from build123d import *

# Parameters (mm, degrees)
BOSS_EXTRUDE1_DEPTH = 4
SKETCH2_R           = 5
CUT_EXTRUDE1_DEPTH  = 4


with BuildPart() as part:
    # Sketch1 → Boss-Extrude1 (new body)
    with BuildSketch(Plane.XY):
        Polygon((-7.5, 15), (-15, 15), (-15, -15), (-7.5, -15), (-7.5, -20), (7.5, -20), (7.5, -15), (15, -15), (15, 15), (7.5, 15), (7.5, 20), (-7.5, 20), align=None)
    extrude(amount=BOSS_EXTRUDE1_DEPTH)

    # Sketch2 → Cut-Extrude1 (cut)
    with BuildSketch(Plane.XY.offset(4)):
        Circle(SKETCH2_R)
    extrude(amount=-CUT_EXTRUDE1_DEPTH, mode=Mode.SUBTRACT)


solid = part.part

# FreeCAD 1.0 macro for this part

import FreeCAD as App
import Part
import Sketcher


def add_polygon(sketch, points):
    """Adds a closed chain of lines whose ends are joined by coincident constraints."""
    first, n = sketch.GeometryCount, len(points)
    for a, b in zip(points, points[1:] + points[:1]):
        sketch.addGeometry(Part.LineSegment(App.Vector(*a, 0), App.Vector(*b, 0)), False)
    for i in range(n):
        sketch.addConstraint(Sketcher.Constraint("Coincident", first + i, 2, first + (i + 1) % n, 1))

doc = App.newDocument("Part")
body = doc.addObject("PartDesign::Body", "Body")

# Sketch on XY plane
sketch1 = body.newObject("Sketcher::SketchObject", "Sketch")
sketch1.AttachmentSupport = (doc.getObject("XY_Plane"), [""])
sketch1.MapMode = "FlatFace"
add_polygon(sketch1, [(-8, 15), (-15, 15), (-15, -15), (-8, -15), (-8, -20), (8, -20), (8, -15), (15, -15), (15, 15), (8, 15), (8, 20), (-8, 20)])  # lines 0-11
sketch1.addConstraint(Sketcher.Constraint("Horizontal", 0))
sketch1.addConstraint(Sketcher.Constraint("Vertical", 1))
sketch1.addConstraint(Sketcher.Constraint("Horizontal", 2))
sketch1.addConstraint(Sketcher.Constraint("Vertical", 3))
sketch1.addConstraint(Sketcher.Constraint("Horizontal", 4))
sketch1.addConstraint(Sketcher.Constraint("Vertical", 5))
sketch1.addConstraint(Sketcher.Constraint("Horizontal", 6))
sketch1.addConstraint(Sketcher.Constraint("Vertical", 7))
sketch1.addConstraint(Sketcher.Constraint("Horizontal", 8))
sketch1.addConstraint(Sketcher.Constraint("Vertical", 9))
sketch1.addConstraint(Sketcher.Constraint("Horizontal", 10))
sketch1.addConstraint(Sketcher.Constraint("Vertical", 11))
sketch1.addConstraint(Sketcher.Constraint("Symmetric", 0, 2, 6, 2, -1, 1))
sketch1.addConstraint(Sketcher.Constraint("Symmetric", 2, 2, 8, 2, -1, 1))
sketch1.addConstraint(Sketcher.Constraint("Symmetric", 4, 2, 10, 2, -1, 1))
sketch1.addConstraint(Sketcher.Constraint("Symmetric", 2, 2, 5, 2, -2))
sketch1.addConstraint(Sketcher.Constraint("DistanceX", 4, 1, 4, 2, 15.0))
sketch1.addConstraint(Sketcher.Constraint("DistanceY", 1, 2, 1, 1, 30.0))
sketch1.addConstraint(Sketcher.Constraint("DistanceY", 3, 2, 3, 1, 5.0))
sketch1.addConstraint(Sketcher.Constraint("DistanceX", 0, 2, 0, 1, 7.5))
pad1 = body.newObject("PartDesign::Pad", "Pad")
pad1.Profile = sketch1
pad1.Length = 4

# Sketch on XY plane
sketch2 = body.newObject("Sketcher::SketchObject", "Sketch001")
sketch2.AttachmentSupport = (doc.getObject("XY_Plane"), [""])
sketch2.MapMode = "FlatFace"
sketch2.AttachmentOffset = App.Placement(App.Vector(0, 0, 4), App.Rotation())
sketch2.addGeometry(Part.Circle(App.Vector(0, 0, 0), App.Vector(0, 0, 1), 5), False)
sketch2.addConstraint(Sketcher.Constraint("Coincident", 0, 3, -1, 1))
sketch2.addConstraint(Sketcher.Constraint("Diameter", 0, 10.0))
pocket1 = body.newObject("PartDesign::Pocket", "Pocket")
pocket1.Profile = sketch2
pocket1.Length = 4

doc.recompute()
